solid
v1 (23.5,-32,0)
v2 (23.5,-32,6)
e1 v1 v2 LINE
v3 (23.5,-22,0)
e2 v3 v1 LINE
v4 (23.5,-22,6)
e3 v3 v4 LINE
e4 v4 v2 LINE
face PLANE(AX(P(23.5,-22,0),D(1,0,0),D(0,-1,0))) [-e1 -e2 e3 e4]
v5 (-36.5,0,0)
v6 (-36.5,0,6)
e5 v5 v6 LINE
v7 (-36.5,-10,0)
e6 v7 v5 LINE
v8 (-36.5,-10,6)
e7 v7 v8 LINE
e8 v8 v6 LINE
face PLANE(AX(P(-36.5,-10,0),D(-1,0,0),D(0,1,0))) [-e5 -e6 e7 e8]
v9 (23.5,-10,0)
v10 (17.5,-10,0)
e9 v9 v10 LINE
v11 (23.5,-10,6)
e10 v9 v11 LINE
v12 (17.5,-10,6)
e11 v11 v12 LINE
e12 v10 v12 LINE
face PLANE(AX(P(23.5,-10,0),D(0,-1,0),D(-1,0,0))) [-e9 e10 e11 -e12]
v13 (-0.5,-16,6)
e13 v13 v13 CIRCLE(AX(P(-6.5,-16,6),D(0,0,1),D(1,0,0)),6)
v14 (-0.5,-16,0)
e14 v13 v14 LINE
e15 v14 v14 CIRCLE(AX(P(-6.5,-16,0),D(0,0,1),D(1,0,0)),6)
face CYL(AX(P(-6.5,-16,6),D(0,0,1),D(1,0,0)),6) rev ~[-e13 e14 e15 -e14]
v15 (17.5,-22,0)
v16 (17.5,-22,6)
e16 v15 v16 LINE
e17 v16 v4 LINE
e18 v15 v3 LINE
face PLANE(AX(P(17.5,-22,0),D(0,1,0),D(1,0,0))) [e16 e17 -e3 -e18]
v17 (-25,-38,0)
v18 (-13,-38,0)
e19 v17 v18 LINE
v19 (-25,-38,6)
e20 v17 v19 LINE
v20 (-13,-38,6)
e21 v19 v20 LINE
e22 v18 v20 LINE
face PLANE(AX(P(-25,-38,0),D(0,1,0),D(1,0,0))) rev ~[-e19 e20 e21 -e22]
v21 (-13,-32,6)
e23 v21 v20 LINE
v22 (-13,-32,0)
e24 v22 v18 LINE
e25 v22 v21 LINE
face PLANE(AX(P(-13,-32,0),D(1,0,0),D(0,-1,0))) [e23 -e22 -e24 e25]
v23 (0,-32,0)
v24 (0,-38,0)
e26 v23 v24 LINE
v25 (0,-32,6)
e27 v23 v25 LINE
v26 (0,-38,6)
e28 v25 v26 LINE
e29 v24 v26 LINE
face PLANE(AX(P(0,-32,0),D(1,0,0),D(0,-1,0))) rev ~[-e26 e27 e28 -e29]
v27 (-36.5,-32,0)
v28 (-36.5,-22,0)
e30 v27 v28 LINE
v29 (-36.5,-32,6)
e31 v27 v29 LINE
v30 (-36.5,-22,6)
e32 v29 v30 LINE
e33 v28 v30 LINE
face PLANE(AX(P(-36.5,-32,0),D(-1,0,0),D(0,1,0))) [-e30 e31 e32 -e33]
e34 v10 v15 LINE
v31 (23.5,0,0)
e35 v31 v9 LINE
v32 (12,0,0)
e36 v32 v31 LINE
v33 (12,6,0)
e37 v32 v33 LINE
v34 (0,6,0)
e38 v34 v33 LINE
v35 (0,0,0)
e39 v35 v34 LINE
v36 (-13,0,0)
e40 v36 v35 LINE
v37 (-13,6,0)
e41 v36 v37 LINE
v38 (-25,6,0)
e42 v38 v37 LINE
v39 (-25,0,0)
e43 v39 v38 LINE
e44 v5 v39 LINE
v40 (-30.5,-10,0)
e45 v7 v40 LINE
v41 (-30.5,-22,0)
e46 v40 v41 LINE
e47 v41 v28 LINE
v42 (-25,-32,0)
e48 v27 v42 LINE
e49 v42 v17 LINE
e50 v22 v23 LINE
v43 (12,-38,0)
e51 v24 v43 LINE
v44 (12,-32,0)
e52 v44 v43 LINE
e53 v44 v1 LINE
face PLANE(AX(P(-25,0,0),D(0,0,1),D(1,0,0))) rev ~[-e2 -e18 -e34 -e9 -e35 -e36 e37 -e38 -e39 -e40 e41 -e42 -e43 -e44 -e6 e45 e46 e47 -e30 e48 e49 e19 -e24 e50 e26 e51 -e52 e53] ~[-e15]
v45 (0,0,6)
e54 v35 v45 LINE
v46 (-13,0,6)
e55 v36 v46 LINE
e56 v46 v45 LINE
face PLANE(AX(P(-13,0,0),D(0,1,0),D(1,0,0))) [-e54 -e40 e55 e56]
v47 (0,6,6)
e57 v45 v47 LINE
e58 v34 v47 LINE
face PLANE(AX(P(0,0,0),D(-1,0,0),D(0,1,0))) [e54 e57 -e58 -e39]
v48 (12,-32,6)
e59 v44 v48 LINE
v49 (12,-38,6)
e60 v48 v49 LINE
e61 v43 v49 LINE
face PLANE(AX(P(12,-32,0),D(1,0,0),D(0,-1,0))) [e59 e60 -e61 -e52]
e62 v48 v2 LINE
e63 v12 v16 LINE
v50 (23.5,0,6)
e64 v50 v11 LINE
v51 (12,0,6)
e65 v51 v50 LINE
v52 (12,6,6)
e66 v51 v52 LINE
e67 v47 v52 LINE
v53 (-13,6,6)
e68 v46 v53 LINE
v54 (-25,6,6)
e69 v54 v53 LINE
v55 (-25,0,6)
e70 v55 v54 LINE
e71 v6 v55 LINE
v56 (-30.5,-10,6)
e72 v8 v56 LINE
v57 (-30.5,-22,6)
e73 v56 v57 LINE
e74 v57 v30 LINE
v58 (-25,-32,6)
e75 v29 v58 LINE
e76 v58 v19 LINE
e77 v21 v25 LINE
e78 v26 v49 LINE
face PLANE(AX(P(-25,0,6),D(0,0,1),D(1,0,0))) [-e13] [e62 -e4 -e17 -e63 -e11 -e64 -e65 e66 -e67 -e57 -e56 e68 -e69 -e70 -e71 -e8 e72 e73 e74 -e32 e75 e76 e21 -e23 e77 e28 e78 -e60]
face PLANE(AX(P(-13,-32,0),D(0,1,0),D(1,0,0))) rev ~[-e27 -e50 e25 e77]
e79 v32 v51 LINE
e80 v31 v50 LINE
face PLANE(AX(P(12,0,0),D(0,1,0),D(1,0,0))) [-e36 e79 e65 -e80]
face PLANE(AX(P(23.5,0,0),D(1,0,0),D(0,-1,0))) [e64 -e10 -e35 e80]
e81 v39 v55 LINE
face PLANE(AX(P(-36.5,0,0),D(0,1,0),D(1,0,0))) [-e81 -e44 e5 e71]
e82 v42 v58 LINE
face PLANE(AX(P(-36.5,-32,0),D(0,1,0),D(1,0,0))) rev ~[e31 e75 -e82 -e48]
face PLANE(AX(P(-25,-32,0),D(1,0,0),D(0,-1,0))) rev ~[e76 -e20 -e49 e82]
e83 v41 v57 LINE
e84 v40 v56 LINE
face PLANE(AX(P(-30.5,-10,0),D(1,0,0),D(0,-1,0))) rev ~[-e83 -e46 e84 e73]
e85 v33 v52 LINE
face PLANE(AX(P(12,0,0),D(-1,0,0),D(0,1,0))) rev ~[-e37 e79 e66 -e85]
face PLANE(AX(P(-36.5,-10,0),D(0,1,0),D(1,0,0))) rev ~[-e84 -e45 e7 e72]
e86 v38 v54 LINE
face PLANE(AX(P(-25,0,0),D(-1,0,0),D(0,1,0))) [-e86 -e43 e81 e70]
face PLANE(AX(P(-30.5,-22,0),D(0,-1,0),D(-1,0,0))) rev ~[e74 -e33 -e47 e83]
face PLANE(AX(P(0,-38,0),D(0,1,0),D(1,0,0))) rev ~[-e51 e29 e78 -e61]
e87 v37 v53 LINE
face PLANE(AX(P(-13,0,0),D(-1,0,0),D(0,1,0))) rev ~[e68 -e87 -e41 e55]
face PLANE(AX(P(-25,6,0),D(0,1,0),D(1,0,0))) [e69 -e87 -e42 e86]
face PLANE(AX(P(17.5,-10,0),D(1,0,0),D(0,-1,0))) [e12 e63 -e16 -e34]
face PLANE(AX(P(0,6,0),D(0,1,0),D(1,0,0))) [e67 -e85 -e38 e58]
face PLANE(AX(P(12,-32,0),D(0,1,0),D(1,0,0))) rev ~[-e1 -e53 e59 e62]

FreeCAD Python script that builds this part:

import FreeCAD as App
import Part
import Sketcher

doc = App.newDocument("Part")
body = doc.addObject("PartDesign::Body", "Body")

# Sketch on XY plane
sketch1 = body.newObject("Sketcher::SketchObject", "Sketch")
sketch1.AttachmentSupport = (doc.getObject("XY_Plane"), [""])
sketch1.MapMode = "FlatFace"
sketch1.addGeometry([
    Part.LineSegment(App.Vector(12, 6, 0), App.Vector(0, 6, 0)),  # 0
    Part.LineSegment(App.Vector(0, 6, 0), App.Vector(0, 0, 0)),  # 1
    Part.LineSegment(App.Vector(0, 0, 0), App.Vector(-13, 0, 0)),  # 2
    Part.LineSegment(App.Vector(-13, 0, 0), App.Vector(-13, 6, 0)),  # 3
    Part.LineSegment(App.Vector(-13, 6, 0), App.Vector(-25, 6, 0)),  # 4
    Part.LineSegment(App.Vector(-25, 6, 0), App.Vector(-25, 0, 0)),  # 5
    Part.LineSegment(App.Vector(-25, 0, 0), App.Vector(-36.5, 0, 0)),  # 6
    Part.LineSegment(App.Vector(-36.5, 0, 0), App.Vector(-36.5, -10, 0)),  # 7
    Part.LineSegment(App.Vector(-36.5, -10, 0), App.Vector(-30.5, -10, 0)),  # 8
    Part.LineSegment(App.Vector(-30.5, -10, 0), App.Vector(-30.5, -22, 0)),  # 9
    Part.LineSegment(App.Vector(-30.5, -22, 0), App.Vector(-36.5, -22, 0)),  # 10
    Part.LineSegment(App.Vector(-36.5, -22, 0), App.Vector(-36.5, -32, 0)),  # 11
    Part.LineSegment(App.Vector(-36.5, -32, 0), App.Vector(-25, -32, 0)),  # 12
    Part.LineSegment(App.Vector(-25, -32, 0), App.Vector(-25, -38, 0)),  # 13
    Part.LineSegment(App.Vector(-25, -38, 0), App.Vector(-13, -38, 0)),  # 14
    Part.LineSegment(App.Vector(-13, -38, 0), App.Vector(-13, -32, 0)),  # 15
    Part.LineSegment(App.Vector(-13, -32, 0), App.Vector(0, -32, 0)),  # 16
    Part.LineSegment(App.Vector(0, -32, 0), App.Vector(0, -38, 0)),  # 17
    Part.LineSegment(App.Vector(0, -38, 0), App.Vector(12, -38, 0)),  # 18
    Part.LineSegment(App.Vector(12, -38, 0), App.Vector(12, -32, 0)),  # 19
    Part.LineSegment(App.Vector(12, -32, 0), App.Vector(23.5, -32, 0)),  # 20
    Part.LineSegment(App.Vector(23.5, -32, 0), App.Vector(23.5, -22, 0)),  # 21
    Part.LineSegment(App.Vector(23.5, -22, 0), App.Vector(17.5, -22, 0)),  # 22
    Part.LineSegment(App.Vector(17.5, -22, 0), App.Vector(17.5, -10, 0)),  # 23
    Part.LineSegment(App.Vector(17.5, -10, 0), App.Vector(23.5, -10, 0)),  # 24
    Part.LineSegment(App.Vector(23.5, -10, 0), App.Vector(23.5, 0, 0)),  # 25
    Part.LineSegment(App.Vector(23.5, 0, 0), App.Vector(12, 0, 0)),  # 26
    Part.LineSegment(App.Vector(12, 0, 0), App.Vector(12, 6, 0)),  # 27
], False)
sketch1.addConstraint([
    Sketcher.Constraint("Coincident", 0, 2, 1, 1),
    Sketcher.Constraint("Coincident", 1, 2, 2, 1),
    Sketcher.Constraint("Coincident", 2, 2, 3, 1),
    Sketcher.Constraint("Coincident", 3, 2, 4, 1),
    Sketcher.Constraint("Coincident", 4, 2, 5, 1),
    Sketcher.Constraint("Coincident", 5, 2, 6, 1),
    Sketcher.Constraint("Coincident", 6, 2, 7, 1),
    Sketcher.Constraint("Coincident", 7, 2, 8, 1),
    Sketcher.Constraint("Coincident", 8, 2, 9, 1),
    Sketcher.Constraint("Coincident", 9, 2, 10, 1),
    Sketcher.Constraint("Coincident", 10, 2, 11, 1),
    Sketcher.Constraint("Coincident", 11, 2, 12, 1),
    Sketcher.Constraint("Coincident", 12, 2, 13, 1),
    Sketcher.Constraint("Coincident", 13, 2, 14, 1),
    Sketcher.Constraint("Coincident", 14, 2, 15, 1),
    Sketcher.Constraint("Coincident", 15, 2, 16, 1),
    Sketcher.Constraint("Coincident", 16, 2, 17, 1),
    Sketcher.Constraint("Coincident", 17, 2, 18, 1),
    Sketcher.Constraint("Coincident", 18, 2, 19, 1),
    Sketcher.Constraint("Coincident", 19, 2, 20, 1),
    Sketcher.Constraint("Coincident", 20, 2, 21, 1),
    Sketcher.Constraint("Coincident", 21, 2, 22, 1),
    Sketcher.Constraint("Coincident", 22, 2, 23, 1),
    Sketcher.Constraint("Coincident", 23, 2, 24, 1),
    Sketcher.Constraint("Coincident", 24, 2, 25, 1),
    Sketcher.Constraint("Coincident", 25, 2, 26, 1),
    Sketcher.Constraint("Coincident", 26, 2, 27, 1),
    Sketcher.Constraint("Coincident", 27, 2, 0, 1),
    Sketcher.Constraint("Horizontal", 0),
    Sketcher.Constraint("Vertical", 1),
    Sketcher.Constraint("Horizontal", 2),
    Sketcher.Constraint("Vertical", 3),
    Sketcher.Constraint("Horizontal", 4),
    Sketcher.Constraint("Vertical", 5),
    Sketcher.Constraint("Horizontal", 6),
    Sketcher.Constraint("Vertical", 7),
    Sketcher.Constraint("Horizontal", 8),
    Sketcher.Constraint("Vertical", 9),
    Sketcher.Constraint("Horizontal", 10),
    Sketcher.Constraint("Vertical", 11),
    Sketcher.Constraint("Horizontal", 12),
    Sketcher.Constraint("Vertical", 13),
    Sketcher.Constraint("Horizontal", 14),
    Sketcher.Constraint("Vertical", 15),
    Sketcher.Constraint("Horizontal", 16),
    Sketcher.Constraint("Vertical", 17),
    Sketcher.Constraint("Horizontal", 18),
    Sketcher.Constraint("Vertical", 19),
    Sketcher.Constraint("Horizontal", 20),
    Sketcher.Constraint("Vertical", 21),
    Sketcher.Constraint("Horizontal", 22),
    Sketcher.Constraint("Vertical", 23),
    Sketcher.Constraint("Horizontal", 24),
    Sketcher.Constraint("Vertical", 25),
    Sketcher.Constraint("Horizontal", 26),
    Sketcher.Constraint("Vertical", 27),
    Sketcher.Constraint("Coincident", 1, 2, -1, 1),
    Sketcher.Constraint("PointOnObject", 5, 2, -1),
    Sketcher.Constraint("PointOnObject", 16, 2, -2),
    Sketcher.Constraint("PointOnObject", 25, 2, -1),
    Sketcher.Constraint("Horizontal", 0, 2, 3, 2),
    Sketcher.Constraint("Horizontal", 12, 2, 15, 2),
    Sketcher.Constraint("Horizontal", 14, 2, 17, 2),
    Sketcher.Constraint("Horizontal", 16, 2, 19, 2),
    Sketcher.Constraint("Horizontal", 10, 2, 21, 2),
    Sketcher.Constraint("Horizontal", 8, 2, 23, 2),
    Sketcher.Constraint("Vertical", 7, 2, 10, 2),
    Sketcher.Constraint("Vertical", 5, 2, 12, 2),
    Sketcher.Constraint("Vertical", 3, 2, 14, 2),
    Sketcher.Constraint("Vertical", 21, 2, 24, 2),
    Sketcher.Constraint("Vertical", 19, 2, 26, 2),
    Sketcher.Constraint("Equal", 0, 4),
    Sketcher.Constraint("Equal", 12, 20),
    Sketcher.Constraint("Equal", 10, 22),
    Sketcher.Constraint("Equal", 24, 1),
    Sketcher.Constraint("Equal", 18, 9),
    Sketcher.Constraint("Equal", 7, 11),
    Sketcher.Constraint("Equal", 5, 13),
    Sketcher.Constraint("DistanceY", 11, 2, -1, 1, 32.0),
    Sketcher.Constraint("DistanceX", 0, 2, 0, 1, 12.0),
    Sketcher.Constraint("DistanceX", 2, 2, 2, 1, 13.0),
    Sketcher.Constraint("DistanceX", 8, 1, 8, 2, 6.0),
    Sketcher.Constraint("DistanceX", 6, 2, 6, 1, 11.5),
])
pad1 = body.newObject("PartDesign::Pad", "Pad")
pad1.Profile = sketch1
pad1.Length = 6

# Sketch on XY plane
sketch2 = body.newObject("Sketcher::SketchObject", "Sketch001")
sketch2.AttachmentSupport = (doc.getObject("XY_Plane"), [""])
sketch2.MapMode = "FlatFace"
sketch2.AttachmentOffset = App.Placement(App.Vector(0, 0, 6), App.Rotation())
sketch2.addGeometry(Part.Circle(App.Vector(-6.5, -16, 0), App.Vector(0, 0, 1), 6), False)
sketch2.addConstraint([
    Sketcher.Constraint("Diameter", 0, 12.0),
    Sketcher.Constraint("DistanceY", 0, 3, -1, 1, 16.0),
    Sketcher.Constraint("DistanceX", 0, 3, -1, 1, 6.5),
])
pocket1 = body.newObject("PartDesign::Pocket", "Pocket")
pocket1.Profile = sketch2
pocket1.Length = 6

doc.recompute()
